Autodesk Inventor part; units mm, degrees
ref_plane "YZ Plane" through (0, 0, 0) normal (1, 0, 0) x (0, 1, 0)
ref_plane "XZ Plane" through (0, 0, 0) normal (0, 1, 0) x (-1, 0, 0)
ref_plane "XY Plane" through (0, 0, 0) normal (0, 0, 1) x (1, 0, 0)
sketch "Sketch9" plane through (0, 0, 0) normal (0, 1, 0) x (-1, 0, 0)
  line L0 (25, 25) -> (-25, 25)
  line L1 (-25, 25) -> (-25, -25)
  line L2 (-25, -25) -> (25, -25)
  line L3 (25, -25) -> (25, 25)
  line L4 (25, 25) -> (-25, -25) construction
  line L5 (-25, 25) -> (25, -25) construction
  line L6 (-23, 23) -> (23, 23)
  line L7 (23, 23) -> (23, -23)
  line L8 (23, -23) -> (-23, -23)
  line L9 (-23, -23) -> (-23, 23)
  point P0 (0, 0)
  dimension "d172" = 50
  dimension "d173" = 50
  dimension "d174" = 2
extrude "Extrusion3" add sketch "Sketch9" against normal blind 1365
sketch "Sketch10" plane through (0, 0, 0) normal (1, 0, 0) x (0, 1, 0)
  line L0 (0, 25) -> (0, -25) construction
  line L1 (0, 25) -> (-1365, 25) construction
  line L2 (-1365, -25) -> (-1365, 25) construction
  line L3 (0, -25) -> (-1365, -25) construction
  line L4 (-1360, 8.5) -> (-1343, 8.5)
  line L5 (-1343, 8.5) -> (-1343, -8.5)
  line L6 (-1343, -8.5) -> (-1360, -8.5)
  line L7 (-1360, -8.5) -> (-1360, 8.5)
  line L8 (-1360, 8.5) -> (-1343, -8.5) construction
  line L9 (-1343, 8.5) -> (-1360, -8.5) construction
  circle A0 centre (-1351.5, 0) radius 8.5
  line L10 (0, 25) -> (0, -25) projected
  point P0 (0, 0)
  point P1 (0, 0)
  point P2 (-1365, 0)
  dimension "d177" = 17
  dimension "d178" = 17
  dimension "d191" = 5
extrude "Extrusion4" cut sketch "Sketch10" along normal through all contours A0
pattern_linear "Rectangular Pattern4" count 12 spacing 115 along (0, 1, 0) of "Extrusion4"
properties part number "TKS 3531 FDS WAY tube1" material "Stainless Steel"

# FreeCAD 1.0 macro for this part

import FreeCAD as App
import Part
import Sketcher
Q = App.Units.Quantity

doc = App.newDocument("Part")
body = doc.addObject("PartDesign::Body", "Body")

# Sketch on XZ plane
sketch1 = body.newObject("Sketcher::SketchObject", "Sketch")
sketch1.AttachmentSupport = (doc.getObject("XZ_Plane"), [""])
sketch1.MapMode = "FlatFace"
sketch1.addGeometry([
    Part.LineSegment(App.Vector(-25, -25, 0), App.Vector(-25, 25, 0)),  # 0
    Part.LineSegment(App.Vector(-25, 25, 0), App.Vector(25, 25, 0)),  # 1
    Part.LineSegment(App.Vector(25, 25, 0), App.Vector(25, -25, 0)),  # 2
    Part.LineSegment(App.Vector(25, -25, 0), App.Vector(-25, -25, 0)),  # 3
    Part.LineSegment(App.Vector(23, -23, 0), App.Vector(23, 23, 0)),  # 4
    Part.LineSegment(App.Vector(23, 23, 0), App.Vector(-23, 23, 0)),  # 5
    Part.LineSegment(App.Vector(-23, 23, 0), App.Vector(-23, -23, 0)),  # 6
    Part.LineSegment(App.Vector(-23, -23, 0), App.Vector(23, -23, 0)),  # 7
], False)
sketch1.addConstraint([
    Sketcher.Constraint("Coincident", 0, 2, 1, 1),
    Sketcher.Constraint("Coincident", 1, 2, 2, 1),
    Sketcher.Constraint("Coincident", 2, 2, 3, 1),
    Sketcher.Constraint("Coincident", 3, 2, 0, 1),
    Sketcher.Constraint("Coincident", 4, 2, 5, 1),
    Sketcher.Constraint("Coincident", 5, 2, 6, 1),
    Sketcher.Constraint("Coincident", 6, 2, 7, 1),
    Sketcher.Constraint("Coincident", 7, 2, 4, 1),
    Sketcher.Constraint("Vertical", 0),
    Sketcher.Constraint("Horizontal", 1),
    Sketcher.Constraint("Vertical", 2),
    Sketcher.Constraint("Horizontal", 3),
    Sketcher.Constraint("Vertical", 4),
    Sketcher.Constraint("Horizontal", 5),
    Sketcher.Constraint("Vertical", 6),
    Sketcher.Constraint("Horizontal", 7),
    Sketcher.Constraint("Symmetric", 0, 2, 2, 2, -1, 1),
    Sketcher.Constraint("Symmetric", 4, 2, 6, 2, -1, 1),
    Sketcher.Constraint("Equal", 3, 0),
    Sketcher.Constraint("Equal", 7, 4),
    Sketcher.Constraint("DistanceX", 1, 1, 1, 2, Q("50 mm")),
    Sketcher.Constraint("DistanceX", 4, 2, 1, 2, Q("2 mm")),
])
pad1 = body.newObject("PartDesign::Pad", "Pad")
pad1.Profile = sketch1
pad1.Length = 1365

# Sketch on YZ plane
sketch2 = body.newObject("Sketcher::SketchObject", "Sketch001")
sketch2.AttachmentSupport = (doc.getObject("YZ_Plane"), [""])
sketch2.MapMode = "FlatFace"
sketch2.addGeometry(Part.Circle(App.Vector(-1352, 0, 0), App.Vector(0, 0, 1), 8), False)
sketch2.addConstraint([
    Sketcher.Constraint("PointOnObject", 0, 3, -1),
    Sketcher.Constraint("Diameter", 0, Q("17 mm")),
    Sketcher.Constraint("DistanceX", 0, 3, -1, 1, Q("1351.5 mm")),
])
pocket1 = body.newObject("PartDesign::Pocket", "Pocket")
pocket1.Profile = sketch2
pocket1.Type = "ThroughAll"
pocket1.Reversed = True
doc.recompute()

linearpattern = body.newObject("PartDesign::LinearPattern", "LinearPattern")
linearpattern.Originals = [pocket1]
linearpattern.Direction = (doc.getObject("Y_Axis"), [""])
linearpattern.Mode = "offset"
linearpattern.Offset = 115
linearpattern.Occurrences = 12
body.Tip = linearpattern

doc.recompute()
